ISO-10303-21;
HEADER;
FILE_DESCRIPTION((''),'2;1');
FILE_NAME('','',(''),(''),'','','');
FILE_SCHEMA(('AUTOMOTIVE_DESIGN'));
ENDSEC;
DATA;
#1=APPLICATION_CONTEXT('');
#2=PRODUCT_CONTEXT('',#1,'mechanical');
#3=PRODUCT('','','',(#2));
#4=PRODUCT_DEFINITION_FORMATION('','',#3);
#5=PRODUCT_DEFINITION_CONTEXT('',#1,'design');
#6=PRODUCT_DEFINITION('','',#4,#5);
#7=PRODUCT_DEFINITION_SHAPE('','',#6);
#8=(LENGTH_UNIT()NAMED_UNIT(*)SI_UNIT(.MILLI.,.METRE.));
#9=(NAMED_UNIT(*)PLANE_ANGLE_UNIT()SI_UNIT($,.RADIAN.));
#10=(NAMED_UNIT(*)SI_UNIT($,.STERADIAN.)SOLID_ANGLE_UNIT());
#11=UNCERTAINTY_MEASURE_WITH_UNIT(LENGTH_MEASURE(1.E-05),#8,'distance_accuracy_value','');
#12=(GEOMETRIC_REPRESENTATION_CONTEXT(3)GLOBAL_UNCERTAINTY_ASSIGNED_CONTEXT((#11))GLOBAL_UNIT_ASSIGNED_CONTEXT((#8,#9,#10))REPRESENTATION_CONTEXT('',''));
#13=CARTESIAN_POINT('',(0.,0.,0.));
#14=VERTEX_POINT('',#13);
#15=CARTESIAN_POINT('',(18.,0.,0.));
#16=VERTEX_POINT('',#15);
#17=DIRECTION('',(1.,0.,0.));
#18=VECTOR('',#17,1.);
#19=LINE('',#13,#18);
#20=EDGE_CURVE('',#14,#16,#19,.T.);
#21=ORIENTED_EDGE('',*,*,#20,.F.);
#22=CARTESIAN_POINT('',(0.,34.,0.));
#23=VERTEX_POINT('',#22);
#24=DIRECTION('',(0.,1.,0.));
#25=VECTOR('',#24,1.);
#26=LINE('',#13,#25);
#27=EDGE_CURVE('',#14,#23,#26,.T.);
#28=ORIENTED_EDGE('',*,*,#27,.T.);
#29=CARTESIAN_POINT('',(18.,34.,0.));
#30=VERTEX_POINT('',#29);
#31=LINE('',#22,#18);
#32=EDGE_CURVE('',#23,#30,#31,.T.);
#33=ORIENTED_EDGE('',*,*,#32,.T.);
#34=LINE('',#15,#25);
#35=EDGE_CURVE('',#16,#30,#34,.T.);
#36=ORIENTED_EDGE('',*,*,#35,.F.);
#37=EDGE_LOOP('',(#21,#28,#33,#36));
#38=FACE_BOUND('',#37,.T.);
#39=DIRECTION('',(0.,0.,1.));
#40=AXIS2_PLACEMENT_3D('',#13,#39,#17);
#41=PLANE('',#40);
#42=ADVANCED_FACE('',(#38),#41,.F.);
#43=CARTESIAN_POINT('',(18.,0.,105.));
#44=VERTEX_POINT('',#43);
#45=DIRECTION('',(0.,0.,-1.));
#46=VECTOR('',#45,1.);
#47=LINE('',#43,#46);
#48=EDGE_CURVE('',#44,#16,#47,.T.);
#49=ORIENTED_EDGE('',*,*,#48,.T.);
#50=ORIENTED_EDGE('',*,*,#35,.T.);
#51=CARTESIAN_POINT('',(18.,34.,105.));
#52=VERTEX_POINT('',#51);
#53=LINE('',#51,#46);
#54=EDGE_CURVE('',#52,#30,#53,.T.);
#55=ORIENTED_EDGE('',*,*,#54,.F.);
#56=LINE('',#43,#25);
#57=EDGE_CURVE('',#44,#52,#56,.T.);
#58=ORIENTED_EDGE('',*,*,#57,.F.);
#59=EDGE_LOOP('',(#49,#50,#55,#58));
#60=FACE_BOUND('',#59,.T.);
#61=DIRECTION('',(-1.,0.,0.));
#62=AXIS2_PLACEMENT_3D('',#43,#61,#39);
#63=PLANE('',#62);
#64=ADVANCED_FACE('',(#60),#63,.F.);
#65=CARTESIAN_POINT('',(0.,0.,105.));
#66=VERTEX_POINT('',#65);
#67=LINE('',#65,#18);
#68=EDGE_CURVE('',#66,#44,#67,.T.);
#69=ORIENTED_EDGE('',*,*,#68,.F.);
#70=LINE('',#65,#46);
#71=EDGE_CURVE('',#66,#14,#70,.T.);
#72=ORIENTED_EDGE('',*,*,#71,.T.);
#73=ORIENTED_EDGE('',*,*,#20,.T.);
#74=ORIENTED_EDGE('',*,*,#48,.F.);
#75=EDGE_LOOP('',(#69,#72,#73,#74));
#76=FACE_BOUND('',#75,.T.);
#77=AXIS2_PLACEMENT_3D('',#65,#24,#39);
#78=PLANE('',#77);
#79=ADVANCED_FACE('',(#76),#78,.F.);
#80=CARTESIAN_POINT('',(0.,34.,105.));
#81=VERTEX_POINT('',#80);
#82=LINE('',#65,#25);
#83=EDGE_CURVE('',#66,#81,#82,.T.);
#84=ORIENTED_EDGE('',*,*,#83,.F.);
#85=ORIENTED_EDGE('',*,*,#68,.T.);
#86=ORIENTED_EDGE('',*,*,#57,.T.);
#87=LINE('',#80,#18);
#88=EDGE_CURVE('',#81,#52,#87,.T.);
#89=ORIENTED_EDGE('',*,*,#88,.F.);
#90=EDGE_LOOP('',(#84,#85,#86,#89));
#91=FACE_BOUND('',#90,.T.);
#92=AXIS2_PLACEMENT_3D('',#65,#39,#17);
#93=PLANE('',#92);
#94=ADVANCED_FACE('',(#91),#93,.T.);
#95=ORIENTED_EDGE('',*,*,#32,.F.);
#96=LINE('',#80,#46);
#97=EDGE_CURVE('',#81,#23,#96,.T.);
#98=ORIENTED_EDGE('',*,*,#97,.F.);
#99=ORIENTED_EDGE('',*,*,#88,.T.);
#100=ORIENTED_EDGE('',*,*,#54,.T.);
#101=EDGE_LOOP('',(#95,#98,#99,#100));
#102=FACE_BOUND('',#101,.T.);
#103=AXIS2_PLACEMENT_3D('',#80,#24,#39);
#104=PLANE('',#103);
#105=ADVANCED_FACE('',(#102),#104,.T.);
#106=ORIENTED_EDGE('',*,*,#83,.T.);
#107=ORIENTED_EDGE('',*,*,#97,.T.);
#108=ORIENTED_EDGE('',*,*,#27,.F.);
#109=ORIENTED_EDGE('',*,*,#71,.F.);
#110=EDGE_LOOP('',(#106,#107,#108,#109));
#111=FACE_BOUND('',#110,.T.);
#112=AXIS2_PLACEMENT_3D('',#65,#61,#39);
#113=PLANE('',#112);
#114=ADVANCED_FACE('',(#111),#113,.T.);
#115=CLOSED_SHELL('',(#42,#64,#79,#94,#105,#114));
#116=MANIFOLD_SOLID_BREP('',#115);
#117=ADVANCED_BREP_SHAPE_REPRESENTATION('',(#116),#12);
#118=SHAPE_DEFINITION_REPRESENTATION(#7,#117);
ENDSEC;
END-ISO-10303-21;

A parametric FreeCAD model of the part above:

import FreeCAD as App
import Part
import Sketcher
from FreeCAD import Vector
Q = App.Units.Quantity

doc = App.newDocument("Part")
params = doc.addObject("Spreadsheet::Sheet", "Params")
for row, (alias, value) in enumerate([
    ("sketch1_width", "18 mm"),
    ("sketch1_height", "34 mm"),
    ("pad1_length", "105 mm"),
], start=1):
    params.set(f"A{row}", alias)
    params.set(f"B{row}", "=" + value)
    params.setAlias(f"B{row}", alias)

body = doc.addObject("PartDesign::Body", "Body")

sketch1 = body.newObject("Sketcher::SketchObject", "Sketch")
sketch1.AttachmentSupport = (doc.getObject("XY_Plane"), [""])
sketch1.MapMode = "FlatFace"
sketch1.addGeometry([
    Part.LineSegment(Vector(0, 34, 0), Vector(0, 0, 0)),
    Part.LineSegment(Vector(0, 0, 0), Vector(18, 0, 0)),
    Part.LineSegment(Vector(18, 0, 0), Vector(18, 34, 0)),
    Part.LineSegment(Vector(18, 34, 0), Vector(0, 34, 0)),
], False)
sketch1.addConstraint([
    Sketcher.Constraint("Coincident", 0, 2, 1, 1),
    Sketcher.Constraint("Coincident", 1, 2, 2, 1),
    Sketcher.Constraint("Coincident", 2, 2, 3, 1),
    Sketcher.Constraint("Coincident", 3, 2, 0, 1),
    Sketcher.Constraint("Vertical", 0),
    Sketcher.Constraint("Horizontal", 1),
    Sketcher.Constraint("Vertical", 2),
    Sketcher.Constraint("Horizontal", 3),
    Sketcher.Constraint("Coincident", 0, 2, -1, 1),
    Sketcher.Constraint("DistanceX", 1, 1, 1, 2, Q("18 mm")),
    Sketcher.Constraint("DistanceY", 0, 2, 0, 1, Q("34 mm")),
])
sketch1.setExpression("Constraints[9]", "Params.sketch1_width")
sketch1.setExpression("Constraints[10]", "Params.sketch1_height")
pad1 = body.newObject("PartDesign::Pad", "Pad")
pad1.Profile = sketch1
pad1.setExpression("Length", "Params.pad1_length")

doc.recompute()
